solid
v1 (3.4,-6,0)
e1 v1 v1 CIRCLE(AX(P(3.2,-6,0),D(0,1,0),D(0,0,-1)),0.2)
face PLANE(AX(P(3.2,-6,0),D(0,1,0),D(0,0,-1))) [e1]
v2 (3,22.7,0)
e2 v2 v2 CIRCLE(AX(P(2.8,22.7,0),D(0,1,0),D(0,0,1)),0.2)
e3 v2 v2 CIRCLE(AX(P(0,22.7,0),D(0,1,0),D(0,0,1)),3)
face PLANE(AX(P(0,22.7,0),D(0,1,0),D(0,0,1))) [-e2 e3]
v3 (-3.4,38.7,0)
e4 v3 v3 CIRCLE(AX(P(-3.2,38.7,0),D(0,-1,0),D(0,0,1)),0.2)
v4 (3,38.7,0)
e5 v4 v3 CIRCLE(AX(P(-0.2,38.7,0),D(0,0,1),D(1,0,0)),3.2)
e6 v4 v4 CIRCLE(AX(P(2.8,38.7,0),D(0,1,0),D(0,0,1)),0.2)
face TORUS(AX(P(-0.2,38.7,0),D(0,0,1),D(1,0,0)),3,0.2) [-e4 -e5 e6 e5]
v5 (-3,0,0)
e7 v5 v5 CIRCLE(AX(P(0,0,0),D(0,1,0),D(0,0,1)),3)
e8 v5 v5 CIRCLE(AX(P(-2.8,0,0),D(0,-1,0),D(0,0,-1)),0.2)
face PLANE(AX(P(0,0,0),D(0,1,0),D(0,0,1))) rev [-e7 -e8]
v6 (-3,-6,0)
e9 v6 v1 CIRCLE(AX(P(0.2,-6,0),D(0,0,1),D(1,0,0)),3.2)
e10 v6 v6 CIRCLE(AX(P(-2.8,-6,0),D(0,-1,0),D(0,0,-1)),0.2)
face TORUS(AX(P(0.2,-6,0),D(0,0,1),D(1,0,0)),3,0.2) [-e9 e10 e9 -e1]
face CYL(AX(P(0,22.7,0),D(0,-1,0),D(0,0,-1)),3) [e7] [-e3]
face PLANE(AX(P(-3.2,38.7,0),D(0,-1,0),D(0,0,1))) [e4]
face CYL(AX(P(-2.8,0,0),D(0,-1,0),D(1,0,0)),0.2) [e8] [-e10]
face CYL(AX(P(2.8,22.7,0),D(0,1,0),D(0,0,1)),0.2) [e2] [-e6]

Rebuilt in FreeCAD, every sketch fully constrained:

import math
import FreeCAD as App
import Part
import Sketcher
from FreeCAD import Vector
Q = App.Units.Quantity

doc = App.newDocument("Part")
body = doc.addObject("PartDesign::Body", "Body")

# Sketch on XZ plane
sketch1 = body.newObject("Sketcher::SketchObject", "Sketch")
sketch1.AttachmentSupport = (doc.getObject("XZ_Plane"), [""])
sketch1.MapMode = "FlatFace"
sketch1.addGeometry(Part.Circle(Vector(0, 0, 0), Vector(0, 0, 1), 3), False)
sketch1.addConstraint([
    Sketcher.Constraint("Coincident", 0, 3, -1, 1),
    Sketcher.Constraint("Diameter", 0, Q("6 mm")),
])
pad1 = body.newObject("PartDesign::Pad", "Pad")
pad1.Profile = sketch1
pad1.Length = 22.7
pad1.Reversed = True

# Sketch on XZ plane
sketch2 = body.newObject("Sketcher::SketchObject", "Sketch001")
sketch2.AttachmentSupport = (doc.getObject("XZ_Plane"), [""])
sketch2.MapMode = "FlatFace"
sketch2.AttachmentOffset = App.Placement(Vector(0, 0, -22.7), App.Rotation())
sketch2.addGeometry(Part.Circle(Vector(2.8, 0, 0), Vector(0, 0, 1), 0.2), False)
sketch2.addConstraint([
    Sketcher.Constraint("PointOnObject", 0, 3, -1),
    Sketcher.Constraint("Diameter", 0, Q("0.4 mm")),
    Sketcher.Constraint("DistanceX", -1, 1, 0, 3, Q("2.8 mm")),
])

# Sketch on XY plane
sketch3 = body.newObject("Sketcher::SketchObject", "Sketch002")
sketch3.AttachmentSupport = (doc.getObject("XY_Plane"), [""])
sketch3.MapMode = "FlatFace"
sketch3.addGeometry([
    Part.LineSegment(Vector(2.8, 22.7, 0), Vector(2.8, 38.7, 0)),
    Part.ArcOfCircle(Part.Circle(Vector(-0.2, 38.7, 0), Vector(0, 0, 1), 3), math.radians(0), math.radians(180)),
], False)
sketch3.addConstraint([
    Sketcher.Constraint("Tangent", 0, 2, 1, 1),
    Sketcher.Constraint("Vertical", 0),
    Sketcher.Constraint("Horizontal", 0, 2, 1, 2),
    Sketcher.Constraint("Radius", 1, Q("3 mm")),
    Sketcher.Constraint("DistanceY", 0, 1, 0, 2, Q("16 mm")),
    Sketcher.Constraint("DistanceX", 1, 3, -1, 1, Q("0.2 mm")),
    Sketcher.Constraint("DistanceY", -1, 1, 1, 3, Q("38.7 mm")),
])
doc.recompute()

additivepipe = body.newObject("PartDesign::AdditivePipe", "AdditivePipe")
additivepipe.Profile = sketch2
additivepipe.Spine = (sketch3, ["Edge1", "Edge2"])

# Sketch on XZ plane
sketch4 = body.newObject("Sketcher::SketchObject", "Sketch003")
sketch4.AttachmentSupport = (doc.getObject("XZ_Plane"), [""])
sketch4.MapMode = "FlatFace"
sketch4.addGeometry(Part.Circle(Vector(-2.8, 0, 0), Vector(0, 0, 1), 0.2), False)
sketch4.addConstraint([
    Sketcher.Constraint("PointOnObject", 0, 3, -1),
    Sketcher.Constraint("Diameter", 0, Q("0.4 mm")),
    Sketcher.Constraint("DistanceX", 0, 3, -1, 1, Q("2.8 mm")),
])

# Sketch on XY plane
sketch5 = body.newObject("Sketcher::SketchObject", "Sketch004")
sketch5.AttachmentSupport = (doc.getObject("XY_Plane"), [""])
sketch5.MapMode = "FlatFace"
sketch5.addGeometry([
    Part.LineSegment(Vector(-2.8, 0, 0), Vector(-2.8, -6, 0)),
    Part.ArcOfCircle(Part.Circle(Vector(0.2, -6, 0), Vector(0, 0, 1), 3), math.radians(180), math.radians(360)),
], False)
sketch5.addConstraint([
    Sketcher.Constraint("Tangent", 0, 2, 1, 1),
    Sketcher.Constraint("Vertical", 0),
    Sketcher.Constraint("PointOnObject", 0, 1, -1),
    Sketcher.Constraint("Horizontal", 0, 2, 1, 2),
    Sketcher.Constraint("Radius", 1, Q("3 mm")),
    Sketcher.Constraint("DistanceY", 0, 2, 0, 1, Q("6 mm")),
    Sketcher.Constraint("DistanceX", -1, 1, 1, 3, Q("0.2 mm")),
])
doc.recompute()

additivepipe2 = body.newObject("PartDesign::AdditivePipe", "AdditivePipe001")
additivepipe2.Profile = sketch4
additivepipe2.Spine = (sketch5, ["Edge1", "Edge2"])

doc.recompute()
